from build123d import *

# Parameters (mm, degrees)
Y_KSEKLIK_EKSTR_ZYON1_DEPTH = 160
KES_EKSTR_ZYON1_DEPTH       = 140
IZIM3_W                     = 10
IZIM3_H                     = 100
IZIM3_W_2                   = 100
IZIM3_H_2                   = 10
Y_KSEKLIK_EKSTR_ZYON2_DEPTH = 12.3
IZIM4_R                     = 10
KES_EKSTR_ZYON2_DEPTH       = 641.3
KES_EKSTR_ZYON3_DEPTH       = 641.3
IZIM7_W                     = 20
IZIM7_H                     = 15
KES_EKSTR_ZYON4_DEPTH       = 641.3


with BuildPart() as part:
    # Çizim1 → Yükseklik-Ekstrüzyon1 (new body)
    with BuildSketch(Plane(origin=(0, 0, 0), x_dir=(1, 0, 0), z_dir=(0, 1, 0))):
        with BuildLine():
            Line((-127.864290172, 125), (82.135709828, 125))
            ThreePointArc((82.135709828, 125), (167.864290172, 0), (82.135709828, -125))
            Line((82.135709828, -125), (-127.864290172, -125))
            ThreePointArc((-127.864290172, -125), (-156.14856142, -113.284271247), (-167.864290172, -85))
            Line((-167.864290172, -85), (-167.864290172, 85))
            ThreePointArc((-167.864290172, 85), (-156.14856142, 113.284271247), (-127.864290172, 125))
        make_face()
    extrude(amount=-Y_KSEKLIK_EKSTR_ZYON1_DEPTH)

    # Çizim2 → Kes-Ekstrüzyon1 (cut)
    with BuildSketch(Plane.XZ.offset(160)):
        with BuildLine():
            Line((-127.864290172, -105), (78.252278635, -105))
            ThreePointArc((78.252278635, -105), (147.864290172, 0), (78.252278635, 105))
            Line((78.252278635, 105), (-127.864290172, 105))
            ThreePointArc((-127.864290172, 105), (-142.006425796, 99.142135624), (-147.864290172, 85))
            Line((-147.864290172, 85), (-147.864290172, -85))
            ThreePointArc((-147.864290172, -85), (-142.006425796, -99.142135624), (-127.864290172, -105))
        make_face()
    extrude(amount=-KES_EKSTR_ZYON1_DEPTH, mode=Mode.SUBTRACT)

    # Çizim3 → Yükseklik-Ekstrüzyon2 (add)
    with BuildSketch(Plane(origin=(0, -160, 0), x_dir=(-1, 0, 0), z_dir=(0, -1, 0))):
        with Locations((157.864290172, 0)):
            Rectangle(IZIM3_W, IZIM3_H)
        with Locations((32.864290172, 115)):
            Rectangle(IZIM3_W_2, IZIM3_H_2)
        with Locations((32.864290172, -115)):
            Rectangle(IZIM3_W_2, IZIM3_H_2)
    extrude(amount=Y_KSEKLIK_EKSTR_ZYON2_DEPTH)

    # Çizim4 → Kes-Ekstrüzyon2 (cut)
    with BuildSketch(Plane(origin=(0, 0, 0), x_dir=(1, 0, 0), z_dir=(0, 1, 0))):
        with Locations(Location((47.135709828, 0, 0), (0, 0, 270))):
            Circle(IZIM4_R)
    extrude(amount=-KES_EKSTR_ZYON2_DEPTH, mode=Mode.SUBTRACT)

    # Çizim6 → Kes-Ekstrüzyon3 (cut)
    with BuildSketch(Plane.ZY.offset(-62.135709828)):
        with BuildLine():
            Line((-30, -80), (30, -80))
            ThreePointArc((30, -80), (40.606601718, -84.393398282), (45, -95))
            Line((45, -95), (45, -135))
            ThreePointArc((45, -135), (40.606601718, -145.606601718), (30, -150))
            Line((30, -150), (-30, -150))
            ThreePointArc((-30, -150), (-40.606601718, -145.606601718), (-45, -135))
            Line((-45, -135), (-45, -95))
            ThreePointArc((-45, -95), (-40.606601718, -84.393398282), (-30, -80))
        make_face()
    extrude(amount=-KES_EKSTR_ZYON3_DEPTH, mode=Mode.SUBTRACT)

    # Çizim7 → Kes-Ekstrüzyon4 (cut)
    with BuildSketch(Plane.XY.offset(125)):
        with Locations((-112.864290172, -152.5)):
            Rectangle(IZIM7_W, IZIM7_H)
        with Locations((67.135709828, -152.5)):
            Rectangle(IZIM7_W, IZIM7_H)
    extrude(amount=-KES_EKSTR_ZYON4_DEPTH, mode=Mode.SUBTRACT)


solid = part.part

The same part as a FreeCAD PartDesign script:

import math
import FreeCAD as App
import Part
import Sketcher
from FreeCAD import Vector
Q = App.Units.Quantity


def add_polygon(sketch, points):
    """Adds a closed chain of lines whose ends are joined by coincident constraints."""
    first, n = sketch.GeometryCount, len(points)
    for a, b in zip(points, points[1:] + points[:1]):
        sketch.addGeometry(Part.LineSegment(App.Vector(*a, 0), App.Vector(*b, 0)), False)
    for i in range(n):
        sketch.addConstraint(Sketcher.Constraint("Coincident", first + i, 2, first + (i + 1) % n, 1))

doc = App.newDocument("Part")
body = doc.addObject("PartDesign::Body", "Body")

# Sketch on XZ plane
sketch1 = body.newObject("Sketcher::SketchObject", "Sketch")
sketch1.AttachmentSupport = (doc.getObject("XZ_Plane"), [""])
sketch1.MapMode = "FlatFace"
sketch1.addGeometry(Part.LineSegment(Vector(82, -125, 0), Vector(-128, -125, 0)), False)
sketch1.addGeometry(Part.ArcOfCircle(Part.Circle(Vector(-128, -85, 0), Vector(0, 0, 1), 40), math.radians(180), math.radians(270)), False)
sketch1.addGeometry(Part.LineSegment(Vector(-168, -85, 0), Vector(-168, 85, 0)), False)
sketch1.addGeometry(Part.ArcOfCircle(Part.Circle(Vector(-128, 85, 0), Vector(0, 0, 1), 40), math.radians(90), math.radians(180)), False)
sketch1.addGeometry(Part.LineSegment(Vector(-128, 125, 0), Vector(82, 125, 0)), False)
sketch1.addGeometry(Part.ArcOfCircle(Part.Circle(Vector(34, 0, 0), Vector(0, 0, 1), 134), math.radians(-69), math.radians(69)), False)
sketch1.addConstraint(Sketcher.Constraint("Tangent", 0, 2, 1, 2))
sketch1.addConstraint(Sketcher.Constraint("Tangent", 1, 1, 2, 1))
sketch1.addConstraint(Sketcher.Constraint("Tangent", 2, 2, 3, 2))
sketch1.addConstraint(Sketcher.Constraint("Tangent", 3, 1, 4, 1))
sketch1.addConstraint(Sketcher.Constraint("Coincident", 4, 2, 5, 2))
sketch1.addConstraint(Sketcher.Constraint("Coincident", 5, 1, 0, 1))
sketch1.addConstraint(Sketcher.Constraint("Horizontal", 0))
sketch1.addConstraint(Sketcher.Constraint("Vertical", 2))
sketch1.addConstraint(Sketcher.Constraint("Horizontal", 4))
sketch1.addConstraint(Sketcher.Constraint("Equal", 1, 3))
sketch1.addConstraint(Sketcher.Constraint("Symmetric", 4, 2, 5, 1, -1))
sketch1.addConstraint(Sketcher.Constraint("Radius", 1, Q("40 mm")))
sketch1.addConstraint(Sketcher.Constraint("DistanceX", 0, 2, 0, 1, Q("210 mm")))
sketch1.addConstraint(Sketcher.Constraint("DistanceY", 2, 1, 2, 2, Q("170 mm")))
sketch1.addConstraint(Sketcher.Constraint("Radius", 5, Q("133.994926 mm")))
sketch1.addConstraint(Sketcher.Constraint("DistanceX", 1, 3, -1, 1, Q("127.86429 mm")))
pad1 = body.newObject("PartDesign::Pad", "Pad")
pad1.Profile = sketch1
pad1.Length = 160

# Sketch on XZ plane
sketch2 = body.newObject("Sketcher::SketchObject", "Sketch001")
sketch2.AttachmentSupport = (doc.getObject("XZ_Plane"), [""])
sketch2.MapMode = "FlatFace"
sketch2.AttachmentOffset = App.Placement(Vector(0, 0, 160), App.Rotation())
sketch2.addGeometry(Part.LineSegment(Vector(-128, -105, 0), Vector(78, -105, 0)), False)
sketch2.addGeometry(Part.ArcOfCircle(Part.Circle(Vector(34, 0, 0), Vector(0, 0, 1), 114), math.radians(-67), math.radians(67)), False)
sketch2.addGeometry(Part.LineSegment(Vector(78, 105, 0), Vector(-128, 105, 0)), False)
sketch2.addGeometry(Part.ArcOfCircle(Part.Circle(Vector(-128, 85, 0), Vector(0, 0, 1), 20), math.radians(90), math.radians(180)), False)
sketch2.addGeometry(Part.LineSegment(Vector(-148, 85, 0), Vector(-148, -85, 0)), False)
sketch2.addGeometry(Part.ArcOfCircle(Part.Circle(Vector(-128, -85, 0), Vector(0, 0, 1), 20), math.radians(180), math.radians(270)), False)
sketch2.addConstraint(Sketcher.Constraint("Coincident", 0, 2, 1, 1))
sketch2.addConstraint(Sketcher.Constraint("Coincident", 1, 2, 2, 1))
sketch2.addConstraint(Sketcher.Constraint("Tangent", 2, 2, 3, 1))
sketch2.addConstraint(Sketcher.Constraint("Tangent", 3, 2, 4, 1))
sketch2.addConstraint(Sketcher.Constraint("Tangent", 4, 2, 5, 1))
sketch2.addConstraint(Sketcher.Constraint("Tangent", 5, 2, 0, 1))
sketch2.addConstraint(Sketcher.Constraint("Horizontal", 0))
sketch2.addConstraint(Sketcher.Constraint("Horizontal", 2))
sketch2.addConstraint(Sketcher.Constraint("Vertical", 4))
sketch2.addConstraint(Sketcher.Constraint("Equal", 3, 5))
sketch2.addConstraint(Sketcher.Constraint("Symmetric", 0, 2, 1, 2, -1))
sketch2.addConstraint(Sketcher.Constraint("Radius", 3, Q("20 mm")))
sketch2.addConstraint(Sketcher.Constraint("DistanceY", 4, 2, 4, 1, Q("170 mm")))
sketch2.addConstraint(Sketcher.Constraint("Radius", 1, Q("113.994926 mm")))
sketch2.addConstraint(Sketcher.Constraint("DistanceX", 0, 1, 0, 2, Q("206.116569 mm")))
sketch2.addConstraint(Sketcher.Constraint("DistanceX", 3, 3, -1, 1, Q("127.86429 mm")))
pocket1 = body.newObject("PartDesign::Pocket", "Pocket")
pocket1.Profile = sketch2
pocket1.Length = 140

# Sketch on XZ plane
sketch3 = body.newObject("Sketcher::SketchObject", "Sketch002")
sketch3.AttachmentSupport = (doc.getObject("XZ_Plane"), [""])
sketch3.MapMode = "FlatFace"
sketch3.AttachmentOffset = App.Placement(Vector(0, 0, 160), App.Rotation())
add_polygon(sketch3, [(-153, -50), (-153, 50), (-163, 50), (-163, -50)])  # lines 0-3
add_polygon(sketch3, [(17, -120), (17, -110), (-83, -110), (-83, -120)])  # lines 4-7
add_polygon(sketch3, [(17, 110), (17, 120), (-83, 120), (-83, 110)])  # lines 8-11
sketch3.addConstraint(Sketcher.Constraint("Vertical", 0))
sketch3.addConstraint(Sketcher.Constraint("Horizontal", 1))
sketch3.addConstraint(Sketcher.Constraint("Vertical", 2))
sketch3.addConstraint(Sketcher.Constraint("Horizontal", 3))
sketch3.addConstraint(Sketcher.Constraint("Vertical", 4))
sketch3.addConstraint(Sketcher.Constraint("Horizontal", 5))
sketch3.addConstraint(Sketcher.Constraint("Vertical", 6))
sketch3.addConstraint(Sketcher.Constraint("Horizontal", 7))
sketch3.addConstraint(Sketcher.Constraint("Vertical", 8))
sketch3.addConstraint(Sketcher.Constraint("Horizontal", 9))
sketch3.addConstraint(Sketcher.Constraint("Vertical", 10))
sketch3.addConstraint(Sketcher.Constraint("Horizontal", 11))
sketch3.addConstraint(Sketcher.Constraint("Symmetric", 7, 2, 8, 2, -1))
sketch3.addConstraint(Sketcher.Constraint("Symmetric", 5, 2, 10, 2, -1))
sketch3.addConstraint(Sketcher.Constraint("Equal", 11, 0))
sketch3.addConstraint(Sketcher.Constraint("Equal", 3, 4))
sketch3.addConstraint(Sketcher.Constraint("DistanceX", 1, 2, 1, 1, Q("10 mm")))
sketch3.addConstraint(Sketcher.Constraint("DistanceX", 5, 2, 5, 1, Q("100 mm")))
sketch3.addConstraint(Sketcher.Constraint("DistanceY", -1, 1, 0, 2, Q("50 mm")))
sketch3.addConstraint(Sketcher.Constraint("DistanceY", 4, 2, -1, 1, Q("110 mm")))
sketch3.addConstraint(Sketcher.Constraint("DistanceX", 3, 2, 4, 2, Q("170 mm")))
sketch3.addConstraint(Sketcher.Constraint("DistanceX", 0, 2, -1, 1, Q("152.86429 mm")))
pad2 = body.newObject("PartDesign::Pad", "Pad001")
pad2.Profile = sketch3
pad2.Length = 12.3

# Sketch on XZ plane
sketch4 = body.newObject("Sketcher::SketchObject", "Sketch003")
sketch4.AttachmentSupport = (doc.getObject("XZ_Plane"), [""])
sketch4.MapMode = "FlatFace"
sketch4.addGeometry(Part.Circle(Vector(47, 0, 0), Vector(0, 0, 1), 10), False)
sketch4.addConstraint(Sketcher.Constraint("PointOnObject", 0, 3, -1))
sketch4.addConstraint(Sketcher.Constraint("Diameter", 0, Q("20 mm")))
sketch4.addConstraint(Sketcher.Constraint("DistanceX", -1, 1, 0, 3, Q("47.13571 mm")))
pocket2 = body.newObject("PartDesign::Pocket", "Pocket001")
pocket2.Profile = sketch4
pocket2.Length = 641.3
pocket2.Reversed = True

# Sketch on YZ plane
sketch5 = body.newObject("Sketcher::SketchObject", "Sketch004")
sketch5.AttachmentSupport = (doc.getObject("YZ_Plane"), [""])
sketch5.MapMode = "FlatFace"
sketch5.AttachmentOffset = App.Placement(Vector(0, 0, 62.13571), App.Rotation())
sketch5.addGeometry(Part.LineSegment(Vector(-80, 30, 0), Vector(-80, -30, 0)), False)
sketch5.addGeometry(Part.ArcOfCircle(Part.Circle(Vector(-95, -30, 0), Vector(0, 0, 1), 15), math.radians(-90), math.radians(0)), False)
sketch5.addGeometry(Part.LineSegment(Vector(-95, -45, 0), Vector(-135, -45, 0)), False)
sketch5.addGeometry(Part.ArcOfCircle(Part.Circle(Vector(-135, -30, 0), Vector(0, 0, 1), 15), math.radians(180), math.radians(270)), False)
sketch5.addGeometry(Part.LineSegment(Vector(-150, -30, 0), Vector(-150, 30, 0)), False)
sketch5.addGeometry(Part.ArcOfCircle(Part.Circle(Vector(-135, 30, 0), Vector(0, 0, 1), 15), math.radians(90), math.radians(180)), False)
sketch5.addGeometry(Part.LineSegment(Vector(-135, 45, 0), Vector(-95, 45, 0)), False)
sketch5.addGeometry(Part.ArcOfCircle(Part.Circle(Vector(-95, 30, 0), Vector(0, 0, 1), 15), math.radians(0), math.radians(90)), False)
sketch5.addConstraint(Sketcher.Constraint("Tangent", 0, 2, 1, 2))
sketch5.addConstraint(Sketcher.Constraint("Tangent", 1, 1, 2, 1))
sketch5.addConstraint(Sketcher.Constraint("Tangent", 2, 2, 3, 2))
sketch5.addConstraint(Sketcher.Constraint("Tangent", 3, 1, 4, 1))
sketch5.addConstraint(Sketcher.Constraint("Tangent", 4, 2, 5, 2))
sketch5.addConstraint(Sketcher.Constraint("Tangent", 5, 1, 6, 1))
sketch5.addConstraint(Sketcher.Constraint("Tangent", 6, 2, 7, 2))
sketch5.addConstraint(Sketcher.Constraint("Tangent", 7, 1, 0, 1))
sketch5.addConstraint(Sketcher.Constraint("Vertical", 0))
sketch5.addConstraint(Sketcher.Constraint("Horizontal", 2))
sketch5.addConstraint(Sketcher.Constraint("Vertical", 4))
sketch5.addConstraint(Sketcher.Constraint("Horizontal", 6))
sketch5.addConstraint(Sketcher.Constraint("Equal", 1, 3))
sketch5.addConstraint(Sketcher.Constraint("Equal", 3, 5))
sketch5.addConstraint(Sketcher.Constraint("Equal", 5, 7))
sketch5.addConstraint(Sketcher.Constraint("Radius", 1, Q("15 mm")))
sketch5.addConstraint(Sketcher.Constraint("DistanceX", 2, 2, 2, 1, Q("40 mm")))
sketch5.addConstraint(Sketcher.Constraint("DistanceY", 0, 2, 0, 1, Q("60 mm")))
sketch5.addConstraint(Sketcher.Constraint("DistanceX", 1, 3, -1, 1, Q("95 mm")))
sketch5.addConstraint(Sketcher.Constraint("DistanceY", 1, 3, -1, 1, Q("30 mm")))
pocket3 = body.newObject("PartDesign::Pocket", "Pocket002")
pocket3.Profile = sketch5
pocket3.Length = 641.3
pocket3.Reversed = True

# Sketch on XY plane
sketch6 = body.newObject("Sketcher::SketchObject", "Sketch005")
sketch6.AttachmentSupport = (doc.getObject("XY_Plane"), [""])
sketch6.MapMode = "FlatFace"
sketch6.AttachmentOffset = App.Placement(Vector(0, 0, 125), App.Rotation())
add_polygon(sketch6, [(-123, -145), (-123, -160), (-103, -160), (-103, -145)])  # lines 0-3
add_polygon(sketch6, [(57, -145), (57, -160), (77, -160), (77, -145)])  # lines 4-7
sketch6.addConstraint(Sketcher.Constraint("Vertical", 0))
sketch6.addConstraint(Sketcher.Constraint("Horizontal", 1))
sketch6.addConstraint(Sketcher.Constraint("Vertical", 2))
sketch6.addConstraint(Sketcher.Constraint("Horizontal", 3))
sketch6.addConstraint(Sketcher.Constraint("Vertical", 4))
sketch6.addConstraint(Sketcher.Constraint("Horizontal", 5))
sketch6.addConstraint(Sketcher.Constraint("Vertical", 6))
sketch6.addConstraint(Sketcher.Constraint("Horizontal", 7))
sketch6.addConstraint(Sketcher.Constraint("Horizontal", 1, 2, 4, 2))
sketch6.addConstraint(Sketcher.Constraint("Horizontal", 3, 2, 6, 2))
sketch6.addConstraint(Sketcher.Constraint("Equal", 3, 5))
sketch6.addConstraint(Sketcher.Constraint("DistanceX", 1, 1, 1, 2, Q("20 mm")))
sketch6.addConstraint(Sketcher.Constraint("DistanceY", 0, 2, 0, 1, Q("15 mm")))
sketch6.addConstraint(Sketcher.Constraint("DistanceY", 0, 2, -1, 1, Q("160 mm")))
sketch6.addConstraint(Sketcher.Constraint("DistanceX", 1, 2, 4, 2, Q("160 mm")))
sketch6.addConstraint(Sketcher.Constraint("DistanceX", 0, 2, -1, 1, Q("122.86429 mm")))
pocket4 = body.newObject("PartDesign::Pocket", "Pocket003")
pocket4.Profile = sketch6
pocket4.Length = 641.3

doc.recompute()
